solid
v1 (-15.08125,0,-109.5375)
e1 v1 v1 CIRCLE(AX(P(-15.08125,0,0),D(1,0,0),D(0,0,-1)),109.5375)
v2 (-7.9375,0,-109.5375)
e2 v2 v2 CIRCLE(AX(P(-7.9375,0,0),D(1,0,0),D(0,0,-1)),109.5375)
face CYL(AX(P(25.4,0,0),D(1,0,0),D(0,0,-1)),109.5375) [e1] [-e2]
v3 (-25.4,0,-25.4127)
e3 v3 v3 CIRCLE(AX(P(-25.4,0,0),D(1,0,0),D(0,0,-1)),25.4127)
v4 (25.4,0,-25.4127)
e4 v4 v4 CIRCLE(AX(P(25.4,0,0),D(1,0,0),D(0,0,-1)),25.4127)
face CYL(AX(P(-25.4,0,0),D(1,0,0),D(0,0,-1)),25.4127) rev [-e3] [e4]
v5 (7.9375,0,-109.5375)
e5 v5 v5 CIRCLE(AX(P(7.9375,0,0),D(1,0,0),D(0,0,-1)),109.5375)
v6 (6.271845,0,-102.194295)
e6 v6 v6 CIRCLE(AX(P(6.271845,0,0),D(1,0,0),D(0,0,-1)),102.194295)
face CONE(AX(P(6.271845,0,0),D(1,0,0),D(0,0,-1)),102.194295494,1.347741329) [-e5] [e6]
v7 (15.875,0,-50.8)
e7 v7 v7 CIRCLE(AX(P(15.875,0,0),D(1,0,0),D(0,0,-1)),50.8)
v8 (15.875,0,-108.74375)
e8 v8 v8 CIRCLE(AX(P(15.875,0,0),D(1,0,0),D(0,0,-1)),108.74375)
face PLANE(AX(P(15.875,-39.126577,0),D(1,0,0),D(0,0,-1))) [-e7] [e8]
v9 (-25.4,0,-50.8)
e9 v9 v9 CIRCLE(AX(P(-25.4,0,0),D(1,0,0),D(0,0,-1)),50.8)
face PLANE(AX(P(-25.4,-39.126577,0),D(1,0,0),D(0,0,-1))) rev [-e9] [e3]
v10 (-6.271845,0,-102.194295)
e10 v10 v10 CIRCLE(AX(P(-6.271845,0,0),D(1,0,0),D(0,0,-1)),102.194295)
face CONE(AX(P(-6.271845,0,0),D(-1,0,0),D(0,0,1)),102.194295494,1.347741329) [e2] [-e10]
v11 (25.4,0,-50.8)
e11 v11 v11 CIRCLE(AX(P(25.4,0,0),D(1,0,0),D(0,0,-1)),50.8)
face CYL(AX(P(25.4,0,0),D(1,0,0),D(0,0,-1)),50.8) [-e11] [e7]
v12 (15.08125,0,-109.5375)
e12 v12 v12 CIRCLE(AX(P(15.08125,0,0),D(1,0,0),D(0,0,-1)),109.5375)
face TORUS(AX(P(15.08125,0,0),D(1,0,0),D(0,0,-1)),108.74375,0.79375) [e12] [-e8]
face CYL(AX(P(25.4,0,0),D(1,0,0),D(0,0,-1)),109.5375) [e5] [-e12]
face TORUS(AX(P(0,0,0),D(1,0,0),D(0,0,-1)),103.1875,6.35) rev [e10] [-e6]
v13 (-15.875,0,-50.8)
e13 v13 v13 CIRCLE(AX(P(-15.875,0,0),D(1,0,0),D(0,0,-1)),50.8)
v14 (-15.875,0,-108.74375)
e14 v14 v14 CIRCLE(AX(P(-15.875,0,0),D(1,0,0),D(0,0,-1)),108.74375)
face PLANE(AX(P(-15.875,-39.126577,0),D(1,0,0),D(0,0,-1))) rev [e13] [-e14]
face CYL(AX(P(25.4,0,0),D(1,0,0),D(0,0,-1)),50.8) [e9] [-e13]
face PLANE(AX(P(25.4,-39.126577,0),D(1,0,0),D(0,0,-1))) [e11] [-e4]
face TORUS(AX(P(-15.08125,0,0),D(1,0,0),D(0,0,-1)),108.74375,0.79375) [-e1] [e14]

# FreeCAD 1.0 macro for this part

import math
import FreeCAD as App
import Part
import Sketcher

V = App.Vector
Q = App.Units.Quantity

doc = App.newDocument("Part")
body = doc.addObject("PartDesign::Body", "Body")

sketch1 = body.newObject("Sketcher::SketchObject", "Sketch")
sketch1.AttachmentSupport = (doc.getObject("XY_Plane"), [""])
sketch1.MapMode = "FlatFace"
sketch1.addGeometry(Part.LineSegment(V(-15.875, 108.74375, 0), V(-15.875, 50.8, 0)), False)
sketch1.addGeometry(Part.LineSegment(V(-15.875, 50.8, 0), V(-25.4, 50.8, 0)), False)
sketch1.addGeometry(Part.LineSegment(V(-25.4, 50.8, 0), V(-25.4, 0, 0)), False)
sketch1.addGeometry(Part.LineSegment(V(-25.4, 0, 0), V(25.4, 0, 0)), False)
sketch1.addGeometry(Part.LineSegment(V(25.4, 0, 0), V(25.4, 50.8, 0)), False)
sketch1.addGeometry(Part.LineSegment(V(25.4, 50.8, 0), V(15.875, 50.8, 0)), False)
sketch1.addGeometry(Part.LineSegment(V(15.875, 50.8, 0), V(15.875, 108.74375, 0)), False)
sketch1.addGeometry(Part.ArcOfCircle(Part.Circle(V(15.08125, 108.74375, 0), V(0, 0, 1), 0.79375), math.radians(0), math.radians(90)), False)
sketch1.addGeometry(Part.LineSegment(V(15.08125, 109.5375, 0), V(7.9375, 109.5375, 0)), False)
sketch1.addGeometry(Part.LineSegment(V(7.9375, 109.5375, 0), V(6.271845, 102.194295, 0)), False)
sketch1.addGeometry(Part.ArcOfCircle(Part.Circle(V(0, 103.1875, 0), V(0, 0, 1), 6.35), math.radians(-171.00141), math.radians(-8.99859)), False)
sketch1.addGeometry(Part.LineSegment(V(-6.271845, 102.194295, 0), V(-7.9375, 109.5375, 0)), False)
sketch1.addGeometry(Part.LineSegment(V(-7.9375, 109.5375, 0), V(-15.08125, 109.5375, 0)), False)
sketch1.addGeometry(Part.ArcOfCircle(Part.Circle(V(-15.08125, 108.74375, 0), V(0, 0, 1), 0.79375), math.radians(90), math.radians(180)), False)
sketch1.addConstraint(Sketcher.Constraint("Coincident", 0, 2, 1, 1))
sketch1.addConstraint(Sketcher.Constraint("Coincident", 1, 2, 2, 1))
sketch1.addConstraint(Sketcher.Constraint("Coincident", 2, 2, 3, 1))
sketch1.addConstraint(Sketcher.Constraint("Coincident", 3, 2, 4, 1))
sketch1.addConstraint(Sketcher.Constraint("Coincident", 4, 2, 5, 1))
sketch1.addConstraint(Sketcher.Constraint("Coincident", 5, 2, 6, 1))
sketch1.addConstraint(Sketcher.Constraint("Tangent", 6, 2, 7, 1))
sketch1.addConstraint(Sketcher.Constraint("Tangent", 7, 2, 8, 1))
sketch1.addConstraint(Sketcher.Constraint("Coincident", 8, 2, 9, 1))
sketch1.addConstraint(Sketcher.Constraint("Coincident", 9, 2, 10, 2))
sketch1.addConstraint(Sketcher.Constraint("Coincident", 10, 1, 11, 1))
sketch1.addConstraint(Sketcher.Constraint("Coincident", 11, 2, 12, 1))
sketch1.addConstraint(Sketcher.Constraint("Tangent", 12, 2, 13, 1))
sketch1.addConstraint(Sketcher.Constraint("Tangent", 13, 2, 0, 1))
sketch1.addConstraint(Sketcher.Constraint("Vertical", 0))
sketch1.addConstraint(Sketcher.Constraint("Horizontal", 1))
sketch1.addConstraint(Sketcher.Constraint("Vertical", 2))
sketch1.addConstraint(Sketcher.Constraint("Horizontal", 3))
sketch1.addConstraint(Sketcher.Constraint("Vertical", 4))
sketch1.addConstraint(Sketcher.Constraint("Horizontal", 5))
sketch1.addConstraint(Sketcher.Constraint("Vertical", 6))
sketch1.addConstraint(Sketcher.Constraint("Horizontal", 8))
sketch1.addConstraint(Sketcher.Constraint("Horizontal", 12))
sketch1.addConstraint(Sketcher.Constraint("Equal", 7, 13))
sketch1.addConstraint(Sketcher.Constraint("Symmetric", 2, 2, 3, 2, -1, 1))
sketch1.addConstraint(Sketcher.Constraint("Symmetric", 7, 3, 13, 3, -2))
sketch1.addConstraint(Sketcher.Constraint("Symmetric", 9, 2, 10, 1, -2))
sketch1.addConstraint(Sketcher.Constraint("Horizontal", 1, 2, 4, 2))
sketch1.addConstraint(Sketcher.Constraint("Equal", 8, 12))
sketch1.addConstraint(Sketcher.Constraint("Equal", 3, 2))
sketch1.addConstraint(Sketcher.Constraint("DistanceX", 3, 1, 3, 2, Q("2 in")))
sketch1.addConstraint(Sketcher.Constraint("Radius", 10, Q("0.25 in")))
sketch1.addConstraint(Sketcher.Constraint("Radius", 7, Q("0.03125 in")))
sketch1.addConstraint(Sketcher.Constraint("DistanceX", 1, 2, 1, 1, Q("0.375 in")))
sketch1.addConstraint(Sketcher.Constraint("DistanceX", 8, 2, 8, 1, Q("0.28125 in")))
sketch1.addConstraint(Sketcher.Constraint("DistanceY", 0, 2, 0, 1, Q("2.28125 in")))
sketch1.addConstraint(Sketcher.Constraint("DistanceY", 10, 3, 7, 2, Q("0.25 in")))
sketch1.addConstraint(Sketcher.Constraint("DistanceX", 10, 1, 9, 2, Q("12.543691 mm")))
revolution = body.newObject("PartDesign::Revolution", "Revolution")
revolution.Profile = sketch1
revolution.ReferenceAxis = (sketch1, ["H_Axis"])
revolution.Angle = 360

sketch2 = body.newObject("Sketcher::SketchObject", "Sketch001")
sketch2.AttachmentSupport = (doc.getObject("YZ_Plane"), [""])
sketch2.MapMode = "FlatFace"
sketch2.AttachmentOffset = App.Placement(V(0, 0, 1 * 25.4), App.Rotation())
sketch2.addGeometry(Part.Circle(V(0, 0, 0), V(0, 0, 1), 25.4127), False)
sketch2.addConstraint(Sketcher.Constraint("Coincident", 0, 3, -1, 1))
sketch2.addConstraint(Sketcher.Constraint("Diameter", 0, Q("2.001 in")))
pocket1 = body.newObject("PartDesign::Pocket", "Pocket")
pocket1.Profile = sketch2
pocket1.Type = "ThroughAll"

doc.recompute()
